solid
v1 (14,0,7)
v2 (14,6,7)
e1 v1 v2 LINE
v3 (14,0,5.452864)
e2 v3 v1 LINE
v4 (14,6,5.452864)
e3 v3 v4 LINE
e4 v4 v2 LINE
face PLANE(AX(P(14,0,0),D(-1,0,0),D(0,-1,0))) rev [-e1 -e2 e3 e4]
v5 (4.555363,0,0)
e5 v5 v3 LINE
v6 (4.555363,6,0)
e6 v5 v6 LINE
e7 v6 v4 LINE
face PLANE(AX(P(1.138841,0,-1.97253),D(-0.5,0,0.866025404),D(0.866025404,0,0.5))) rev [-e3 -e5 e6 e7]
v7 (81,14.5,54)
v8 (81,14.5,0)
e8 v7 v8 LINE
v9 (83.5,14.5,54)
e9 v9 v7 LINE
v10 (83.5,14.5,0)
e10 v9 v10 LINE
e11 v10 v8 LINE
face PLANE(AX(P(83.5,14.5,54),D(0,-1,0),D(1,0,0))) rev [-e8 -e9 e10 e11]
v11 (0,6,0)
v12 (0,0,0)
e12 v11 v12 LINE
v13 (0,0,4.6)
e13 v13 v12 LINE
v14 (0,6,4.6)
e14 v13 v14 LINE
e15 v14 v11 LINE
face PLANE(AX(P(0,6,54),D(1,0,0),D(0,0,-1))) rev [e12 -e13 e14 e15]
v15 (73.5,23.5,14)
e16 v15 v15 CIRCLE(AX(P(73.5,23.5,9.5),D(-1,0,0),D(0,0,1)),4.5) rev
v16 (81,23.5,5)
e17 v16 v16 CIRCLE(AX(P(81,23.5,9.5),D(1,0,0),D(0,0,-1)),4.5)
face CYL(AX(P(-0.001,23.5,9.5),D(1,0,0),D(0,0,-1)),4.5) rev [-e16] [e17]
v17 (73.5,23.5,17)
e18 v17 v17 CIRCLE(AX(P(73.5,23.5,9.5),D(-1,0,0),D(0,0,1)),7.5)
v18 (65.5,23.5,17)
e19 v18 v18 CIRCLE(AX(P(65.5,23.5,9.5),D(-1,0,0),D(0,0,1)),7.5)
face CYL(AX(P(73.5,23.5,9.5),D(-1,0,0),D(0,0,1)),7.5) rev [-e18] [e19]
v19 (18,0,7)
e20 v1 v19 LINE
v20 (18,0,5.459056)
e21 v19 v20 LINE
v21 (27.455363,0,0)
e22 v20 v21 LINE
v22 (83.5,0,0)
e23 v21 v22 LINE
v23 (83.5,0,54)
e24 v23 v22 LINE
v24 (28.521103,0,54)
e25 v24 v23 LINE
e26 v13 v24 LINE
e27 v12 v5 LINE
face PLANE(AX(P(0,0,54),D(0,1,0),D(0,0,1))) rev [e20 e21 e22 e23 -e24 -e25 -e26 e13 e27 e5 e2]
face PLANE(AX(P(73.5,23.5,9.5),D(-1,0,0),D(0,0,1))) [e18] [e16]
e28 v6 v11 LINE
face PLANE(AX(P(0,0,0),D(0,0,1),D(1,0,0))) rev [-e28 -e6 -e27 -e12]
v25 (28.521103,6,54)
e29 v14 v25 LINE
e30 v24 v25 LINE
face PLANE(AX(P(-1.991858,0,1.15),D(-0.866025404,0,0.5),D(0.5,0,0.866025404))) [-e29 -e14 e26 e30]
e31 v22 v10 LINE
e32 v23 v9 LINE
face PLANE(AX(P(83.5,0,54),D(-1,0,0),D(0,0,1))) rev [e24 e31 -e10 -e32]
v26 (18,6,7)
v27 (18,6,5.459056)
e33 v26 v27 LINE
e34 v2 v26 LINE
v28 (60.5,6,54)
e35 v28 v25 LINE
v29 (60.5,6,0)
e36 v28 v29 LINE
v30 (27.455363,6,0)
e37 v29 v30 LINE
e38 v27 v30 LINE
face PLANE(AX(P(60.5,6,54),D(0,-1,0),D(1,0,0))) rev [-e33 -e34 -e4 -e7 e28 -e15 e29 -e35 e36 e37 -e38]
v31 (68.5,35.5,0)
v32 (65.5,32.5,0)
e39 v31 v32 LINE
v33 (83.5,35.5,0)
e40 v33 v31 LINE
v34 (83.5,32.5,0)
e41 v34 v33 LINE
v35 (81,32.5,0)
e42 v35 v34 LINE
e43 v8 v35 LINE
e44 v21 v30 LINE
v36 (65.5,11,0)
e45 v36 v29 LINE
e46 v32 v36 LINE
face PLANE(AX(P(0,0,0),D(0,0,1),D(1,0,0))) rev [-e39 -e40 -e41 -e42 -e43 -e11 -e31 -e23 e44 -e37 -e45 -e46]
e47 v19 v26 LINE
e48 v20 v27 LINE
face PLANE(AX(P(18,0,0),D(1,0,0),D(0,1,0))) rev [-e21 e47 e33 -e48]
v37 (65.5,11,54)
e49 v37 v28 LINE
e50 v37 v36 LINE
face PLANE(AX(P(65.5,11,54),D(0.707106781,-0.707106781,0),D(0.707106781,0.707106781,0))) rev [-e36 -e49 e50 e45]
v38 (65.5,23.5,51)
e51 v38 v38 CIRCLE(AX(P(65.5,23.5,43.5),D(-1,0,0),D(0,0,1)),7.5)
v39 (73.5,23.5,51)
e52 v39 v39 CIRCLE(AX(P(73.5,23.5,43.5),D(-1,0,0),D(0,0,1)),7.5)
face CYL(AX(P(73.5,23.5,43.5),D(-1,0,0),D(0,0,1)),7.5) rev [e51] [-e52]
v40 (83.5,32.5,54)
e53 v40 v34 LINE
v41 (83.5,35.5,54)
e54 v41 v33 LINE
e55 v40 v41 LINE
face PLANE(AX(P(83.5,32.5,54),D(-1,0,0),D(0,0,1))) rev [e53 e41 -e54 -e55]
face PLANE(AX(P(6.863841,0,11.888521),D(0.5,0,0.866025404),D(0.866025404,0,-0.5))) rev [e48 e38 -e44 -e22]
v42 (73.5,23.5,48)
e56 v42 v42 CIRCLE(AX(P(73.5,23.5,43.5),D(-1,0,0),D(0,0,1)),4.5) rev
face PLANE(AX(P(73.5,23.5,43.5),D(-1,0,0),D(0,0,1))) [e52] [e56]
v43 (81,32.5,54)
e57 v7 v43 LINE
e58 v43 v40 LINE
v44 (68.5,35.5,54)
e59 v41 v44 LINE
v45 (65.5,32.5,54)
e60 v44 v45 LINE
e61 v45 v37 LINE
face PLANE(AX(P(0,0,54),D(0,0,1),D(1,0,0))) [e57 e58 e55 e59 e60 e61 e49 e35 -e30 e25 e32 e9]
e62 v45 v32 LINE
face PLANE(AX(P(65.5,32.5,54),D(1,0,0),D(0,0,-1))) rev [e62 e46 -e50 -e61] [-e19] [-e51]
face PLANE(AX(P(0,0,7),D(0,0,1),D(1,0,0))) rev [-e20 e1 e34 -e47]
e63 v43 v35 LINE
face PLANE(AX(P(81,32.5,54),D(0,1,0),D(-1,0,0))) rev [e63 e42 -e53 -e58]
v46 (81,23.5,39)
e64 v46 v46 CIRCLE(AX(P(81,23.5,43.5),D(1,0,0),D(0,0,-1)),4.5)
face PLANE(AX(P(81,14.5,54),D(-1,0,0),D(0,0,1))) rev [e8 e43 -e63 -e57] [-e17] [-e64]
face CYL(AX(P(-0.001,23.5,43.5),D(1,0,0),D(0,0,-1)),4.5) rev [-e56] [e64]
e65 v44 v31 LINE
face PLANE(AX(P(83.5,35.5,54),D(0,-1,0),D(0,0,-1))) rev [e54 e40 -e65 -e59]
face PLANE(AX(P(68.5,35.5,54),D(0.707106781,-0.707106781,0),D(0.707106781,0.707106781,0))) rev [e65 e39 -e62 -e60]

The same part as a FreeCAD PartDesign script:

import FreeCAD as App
import Part
import Sketcher
from FreeCAD import Vector
Q = App.Units.Quantity


def add_polygon(sketch, points):
    """Adds a closed chain of lines whose ends are joined by coincident constraints."""
    first, n = sketch.GeometryCount, len(points)
    for a, b in zip(points, points[1:] + points[:1]):
        sketch.addGeometry(Part.LineSegment(App.Vector(*a, 0), App.Vector(*b, 0)), False)
    for i in range(n):
        sketch.addConstraint(Sketcher.Constraint("Coincident", first + i, 2, first + (i + 1) % n, 1))

doc = App.newDocument("Part")
body = doc.addObject("PartDesign::Body", "Body")

# Sketch on XY plane
sketch1 = body.newObject("Sketcher::SketchObject", "Sketch")
sketch1.AttachmentSupport = (doc.getObject("XY_Plane"), [""])
sketch1.MapMode = "FlatFace"
add_polygon(sketch1, [(0, 6), (0, 0), (83.5, 0), (83.5, 14.5), (81, 14.5), (81, 32.5), (83.5, 32.5), (83.5, 35.5), (68.5, 35.5), (65.5, 32.5), (65.5, 11), (60.5, 6)])  # lines 0-11
sketch1.addConstraint([
    Sketcher.Constraint("Vertical", 0),
    Sketcher.Constraint("Horizontal", 1),
    Sketcher.Constraint("Vertical", 2),
    Sketcher.Constraint("Horizontal", 3),
    Sketcher.Constraint("Vertical", 4),
    Sketcher.Constraint("Horizontal", 5),
    Sketcher.Constraint("Vertical", 6),
    Sketcher.Constraint("Horizontal", 7),
    Sketcher.Constraint("Vertical", 9),
    Sketcher.Constraint("Horizontal", 11),
    Sketcher.Constraint("Coincident", 0, 2, -1, 1),
    Sketcher.Constraint("Parallel", 8, 10),
    Sketcher.Constraint("Horizontal", 5, 2, 8, 2),
    Sketcher.Constraint("Vertical", 2, 2, 5, 2),
    Sketcher.Constraint("DistanceX", 7, 2, 7, 1, 15.0),
    Sketcher.Constraint("DistanceY", 0, 2, 0, 1, 6.0),
    Sketcher.Constraint("DistanceY", 4, 1, 4, 2, 18.0),
    Sketcher.Constraint("DistanceY", 6, 1, 6, 2, 3.0),
    Sketcher.Constraint("Angle", 8, Q("-135 deg")),
    Sketcher.Constraint("DistanceX", 1, 1, 1, 2, 83.5),
    Sketcher.Constraint("DistanceX", 3, 2, 3, 1, 2.5),
    Sketcher.Constraint("DistanceX", 11, 2, 11, 1, 60.5),
    Sketcher.Constraint("DistanceY", 2, 1, 2, 2, 14.5),
])
pad1 = body.newObject("PartDesign::Pad", "Pad")
pad1.Profile = sketch1
pad1.Length = 54

# Sketch on XZ plane
sketch2 = body.newObject("Sketcher::SketchObject", "Sketch001")
sketch2.AttachmentSupport = (doc.getObject("XZ_Plane"), [""])
sketch2.MapMode = "FlatFace"
sketch2.AttachmentOffset = App.Placement(Vector(0, 0, -6), App.Rotation())
add_polygon(sketch2, [(29, 54), (0, 5), (0, 54)])  # lines 0-2
sketch2.addConstraint([
    Sketcher.Constraint("Vertical", 1),
    Sketcher.Constraint("Horizontal", 2),
    Sketcher.Constraint("PointOnObject", 0, 2, -2),
    Sketcher.Constraint("Angle", 0, Q("-120 deg")),
    Sketcher.Constraint("DistanceY", 1, 1, 1, 2, 49.4),
    Sketcher.Constraint("DistanceY", -1, 1, 1, 2, 54.0),
])
pocket1 = body.newObject("PartDesign::Pocket", "Pocket")
pocket1.Profile = sketch2
pocket1.Type = "ThroughAll"
pocket1.Reversed = True

# Sketch on XZ plane
sketch3 = body.newObject("Sketcher::SketchObject", "Sketch002")
sketch3.AttachmentSupport = (doc.getObject("XZ_Plane"), [""])
sketch3.MapMode = "FlatFace"
sketch3.AttachmentOffset = App.Placement(Vector(0, 0, -6), App.Rotation())
add_polygon(sketch3, [(14, 5.5), (14, 7), (18, 7), (18, 5.5), (27.5, 0), (4.6, 0)])  # lines 0-5
sketch3.addConstraint([
    Sketcher.Constraint("Vertical", 0),
    Sketcher.Constraint("Horizontal", 1),
    Sketcher.Constraint("Vertical", 2),
    Sketcher.Constraint("Horizontal", 4),
    Sketcher.Constraint("PointOnObject", 3, 2, -1),
    Sketcher.Constraint("DistanceX", 1, 1, 1, 2, 4.0),
    Sketcher.Constraint("Angle", 3, Q("-30 deg")),
    Sketcher.Constraint("Angle", 5, Q("30 deg")),
    Sketcher.Constraint("DistanceX", 4, 2, 4, 1, 22.9),
    Sketcher.Constraint("DistanceX", -1, 1, 0, 2, 14.0),
    Sketcher.Constraint("DistanceY", -1, 1, 0, 2, 7.0),
    Sketcher.Constraint("DistanceY", 0, 1, 0, 2, 1.547136),
])
pocket2 = body.newObject("PartDesign::Pocket", "Pocket001")
pocket2.Profile = sketch3
pocket2.Type = "ThroughAll"
pocket2.Reversed = True

# Sketch on YZ plane
sketch4 = body.newObject("Sketcher::SketchObject", "Sketch003")
sketch4.AttachmentSupport = (doc.getObject("YZ_Plane"), [""])
sketch4.MapMode = "FlatFace"
sketch4.AttachmentOffset = App.Placement(Vector(0, 0, 81), App.Rotation())
sketch4.addGeometry(Part.Circle(Vector(23.5, 9.5, 0), Vector(0, 0, 1), 4.5), False)
sketch4.addConstraint([
    Sketcher.Constraint("Diameter", 0, 9.0),
    Sketcher.Constraint("DistanceX", -1, 1, 0, 3, 23.5),
    Sketcher.Constraint("DistanceY", -1, 1, 0, 3, 9.5),
])
pocket3 = body.newObject("PartDesign::Pocket", "Pocket002")
pocket3.Profile = sketch4
pocket3.Type = "UpToFirst"

# Sketch on YZ plane
sketch5 = body.newObject("Sketcher::SketchObject", "Sketch004")
sketch5.AttachmentSupport = (doc.getObject("YZ_Plane"), [""])
sketch5.MapMode = "FlatFace"
sketch5.AttachmentOffset = App.Placement(Vector(0, 0, 81), App.Rotation())
sketch5.addGeometry(Part.Circle(Vector(23.5, 43.5, 0), Vector(0, 0, 1), 4.5), False)
sketch5.addConstraint([
    Sketcher.Constraint("Diameter", 0, 9.0),
    Sketcher.Constraint("DistanceX", -1, 1, 0, 3, 23.5),
    Sketcher.Constraint("DistanceY", -1, 1, 0, 3, 43.5),
])
pocket4 = body.newObject("PartDesign::Pocket", "Pocket003")
pocket4.Profile = sketch5
pocket4.Type = "UpToFirst"

# Sketch on YZ plane
sketch6 = body.newObject("Sketcher::SketchObject", "Sketch005")
sketch6.AttachmentSupport = (doc.getObject("YZ_Plane"), [""])
sketch6.MapMode = "FlatFace"
sketch6.AttachmentOffset = App.Placement(Vector(0, 0, 65.5), App.Rotation())
sketch6.addGeometry([
    Part.Circle(Vector(24, 44, 0), Vector(0, 0, 1), 8),
    Part.Circle(Vector(24, 10, 0), Vector(0, 0, 1), 8),
], False)
sketch6.addConstraint([
    Sketcher.Constraint("Equal", 0, 1),
    Sketcher.Constraint("Vertical", 0, 3, 1, 3),
    Sketcher.Constraint("Diameter", 0, 15.0),
    Sketcher.Constraint("DistanceY", 1, 3, 0, 3, 34.0),
    Sketcher.Constraint("DistanceX", -1, 1, 0, 3, 23.5),
    Sketcher.Constraint("DistanceY", -1, 1, 0, 3, 43.5),
])
pocket5 = body.newObject("PartDesign::Pocket", "Pocket004")
pocket5.Profile = sketch6
pocket5.Length = 8
pocket5.Reversed = True

doc.recompute()
